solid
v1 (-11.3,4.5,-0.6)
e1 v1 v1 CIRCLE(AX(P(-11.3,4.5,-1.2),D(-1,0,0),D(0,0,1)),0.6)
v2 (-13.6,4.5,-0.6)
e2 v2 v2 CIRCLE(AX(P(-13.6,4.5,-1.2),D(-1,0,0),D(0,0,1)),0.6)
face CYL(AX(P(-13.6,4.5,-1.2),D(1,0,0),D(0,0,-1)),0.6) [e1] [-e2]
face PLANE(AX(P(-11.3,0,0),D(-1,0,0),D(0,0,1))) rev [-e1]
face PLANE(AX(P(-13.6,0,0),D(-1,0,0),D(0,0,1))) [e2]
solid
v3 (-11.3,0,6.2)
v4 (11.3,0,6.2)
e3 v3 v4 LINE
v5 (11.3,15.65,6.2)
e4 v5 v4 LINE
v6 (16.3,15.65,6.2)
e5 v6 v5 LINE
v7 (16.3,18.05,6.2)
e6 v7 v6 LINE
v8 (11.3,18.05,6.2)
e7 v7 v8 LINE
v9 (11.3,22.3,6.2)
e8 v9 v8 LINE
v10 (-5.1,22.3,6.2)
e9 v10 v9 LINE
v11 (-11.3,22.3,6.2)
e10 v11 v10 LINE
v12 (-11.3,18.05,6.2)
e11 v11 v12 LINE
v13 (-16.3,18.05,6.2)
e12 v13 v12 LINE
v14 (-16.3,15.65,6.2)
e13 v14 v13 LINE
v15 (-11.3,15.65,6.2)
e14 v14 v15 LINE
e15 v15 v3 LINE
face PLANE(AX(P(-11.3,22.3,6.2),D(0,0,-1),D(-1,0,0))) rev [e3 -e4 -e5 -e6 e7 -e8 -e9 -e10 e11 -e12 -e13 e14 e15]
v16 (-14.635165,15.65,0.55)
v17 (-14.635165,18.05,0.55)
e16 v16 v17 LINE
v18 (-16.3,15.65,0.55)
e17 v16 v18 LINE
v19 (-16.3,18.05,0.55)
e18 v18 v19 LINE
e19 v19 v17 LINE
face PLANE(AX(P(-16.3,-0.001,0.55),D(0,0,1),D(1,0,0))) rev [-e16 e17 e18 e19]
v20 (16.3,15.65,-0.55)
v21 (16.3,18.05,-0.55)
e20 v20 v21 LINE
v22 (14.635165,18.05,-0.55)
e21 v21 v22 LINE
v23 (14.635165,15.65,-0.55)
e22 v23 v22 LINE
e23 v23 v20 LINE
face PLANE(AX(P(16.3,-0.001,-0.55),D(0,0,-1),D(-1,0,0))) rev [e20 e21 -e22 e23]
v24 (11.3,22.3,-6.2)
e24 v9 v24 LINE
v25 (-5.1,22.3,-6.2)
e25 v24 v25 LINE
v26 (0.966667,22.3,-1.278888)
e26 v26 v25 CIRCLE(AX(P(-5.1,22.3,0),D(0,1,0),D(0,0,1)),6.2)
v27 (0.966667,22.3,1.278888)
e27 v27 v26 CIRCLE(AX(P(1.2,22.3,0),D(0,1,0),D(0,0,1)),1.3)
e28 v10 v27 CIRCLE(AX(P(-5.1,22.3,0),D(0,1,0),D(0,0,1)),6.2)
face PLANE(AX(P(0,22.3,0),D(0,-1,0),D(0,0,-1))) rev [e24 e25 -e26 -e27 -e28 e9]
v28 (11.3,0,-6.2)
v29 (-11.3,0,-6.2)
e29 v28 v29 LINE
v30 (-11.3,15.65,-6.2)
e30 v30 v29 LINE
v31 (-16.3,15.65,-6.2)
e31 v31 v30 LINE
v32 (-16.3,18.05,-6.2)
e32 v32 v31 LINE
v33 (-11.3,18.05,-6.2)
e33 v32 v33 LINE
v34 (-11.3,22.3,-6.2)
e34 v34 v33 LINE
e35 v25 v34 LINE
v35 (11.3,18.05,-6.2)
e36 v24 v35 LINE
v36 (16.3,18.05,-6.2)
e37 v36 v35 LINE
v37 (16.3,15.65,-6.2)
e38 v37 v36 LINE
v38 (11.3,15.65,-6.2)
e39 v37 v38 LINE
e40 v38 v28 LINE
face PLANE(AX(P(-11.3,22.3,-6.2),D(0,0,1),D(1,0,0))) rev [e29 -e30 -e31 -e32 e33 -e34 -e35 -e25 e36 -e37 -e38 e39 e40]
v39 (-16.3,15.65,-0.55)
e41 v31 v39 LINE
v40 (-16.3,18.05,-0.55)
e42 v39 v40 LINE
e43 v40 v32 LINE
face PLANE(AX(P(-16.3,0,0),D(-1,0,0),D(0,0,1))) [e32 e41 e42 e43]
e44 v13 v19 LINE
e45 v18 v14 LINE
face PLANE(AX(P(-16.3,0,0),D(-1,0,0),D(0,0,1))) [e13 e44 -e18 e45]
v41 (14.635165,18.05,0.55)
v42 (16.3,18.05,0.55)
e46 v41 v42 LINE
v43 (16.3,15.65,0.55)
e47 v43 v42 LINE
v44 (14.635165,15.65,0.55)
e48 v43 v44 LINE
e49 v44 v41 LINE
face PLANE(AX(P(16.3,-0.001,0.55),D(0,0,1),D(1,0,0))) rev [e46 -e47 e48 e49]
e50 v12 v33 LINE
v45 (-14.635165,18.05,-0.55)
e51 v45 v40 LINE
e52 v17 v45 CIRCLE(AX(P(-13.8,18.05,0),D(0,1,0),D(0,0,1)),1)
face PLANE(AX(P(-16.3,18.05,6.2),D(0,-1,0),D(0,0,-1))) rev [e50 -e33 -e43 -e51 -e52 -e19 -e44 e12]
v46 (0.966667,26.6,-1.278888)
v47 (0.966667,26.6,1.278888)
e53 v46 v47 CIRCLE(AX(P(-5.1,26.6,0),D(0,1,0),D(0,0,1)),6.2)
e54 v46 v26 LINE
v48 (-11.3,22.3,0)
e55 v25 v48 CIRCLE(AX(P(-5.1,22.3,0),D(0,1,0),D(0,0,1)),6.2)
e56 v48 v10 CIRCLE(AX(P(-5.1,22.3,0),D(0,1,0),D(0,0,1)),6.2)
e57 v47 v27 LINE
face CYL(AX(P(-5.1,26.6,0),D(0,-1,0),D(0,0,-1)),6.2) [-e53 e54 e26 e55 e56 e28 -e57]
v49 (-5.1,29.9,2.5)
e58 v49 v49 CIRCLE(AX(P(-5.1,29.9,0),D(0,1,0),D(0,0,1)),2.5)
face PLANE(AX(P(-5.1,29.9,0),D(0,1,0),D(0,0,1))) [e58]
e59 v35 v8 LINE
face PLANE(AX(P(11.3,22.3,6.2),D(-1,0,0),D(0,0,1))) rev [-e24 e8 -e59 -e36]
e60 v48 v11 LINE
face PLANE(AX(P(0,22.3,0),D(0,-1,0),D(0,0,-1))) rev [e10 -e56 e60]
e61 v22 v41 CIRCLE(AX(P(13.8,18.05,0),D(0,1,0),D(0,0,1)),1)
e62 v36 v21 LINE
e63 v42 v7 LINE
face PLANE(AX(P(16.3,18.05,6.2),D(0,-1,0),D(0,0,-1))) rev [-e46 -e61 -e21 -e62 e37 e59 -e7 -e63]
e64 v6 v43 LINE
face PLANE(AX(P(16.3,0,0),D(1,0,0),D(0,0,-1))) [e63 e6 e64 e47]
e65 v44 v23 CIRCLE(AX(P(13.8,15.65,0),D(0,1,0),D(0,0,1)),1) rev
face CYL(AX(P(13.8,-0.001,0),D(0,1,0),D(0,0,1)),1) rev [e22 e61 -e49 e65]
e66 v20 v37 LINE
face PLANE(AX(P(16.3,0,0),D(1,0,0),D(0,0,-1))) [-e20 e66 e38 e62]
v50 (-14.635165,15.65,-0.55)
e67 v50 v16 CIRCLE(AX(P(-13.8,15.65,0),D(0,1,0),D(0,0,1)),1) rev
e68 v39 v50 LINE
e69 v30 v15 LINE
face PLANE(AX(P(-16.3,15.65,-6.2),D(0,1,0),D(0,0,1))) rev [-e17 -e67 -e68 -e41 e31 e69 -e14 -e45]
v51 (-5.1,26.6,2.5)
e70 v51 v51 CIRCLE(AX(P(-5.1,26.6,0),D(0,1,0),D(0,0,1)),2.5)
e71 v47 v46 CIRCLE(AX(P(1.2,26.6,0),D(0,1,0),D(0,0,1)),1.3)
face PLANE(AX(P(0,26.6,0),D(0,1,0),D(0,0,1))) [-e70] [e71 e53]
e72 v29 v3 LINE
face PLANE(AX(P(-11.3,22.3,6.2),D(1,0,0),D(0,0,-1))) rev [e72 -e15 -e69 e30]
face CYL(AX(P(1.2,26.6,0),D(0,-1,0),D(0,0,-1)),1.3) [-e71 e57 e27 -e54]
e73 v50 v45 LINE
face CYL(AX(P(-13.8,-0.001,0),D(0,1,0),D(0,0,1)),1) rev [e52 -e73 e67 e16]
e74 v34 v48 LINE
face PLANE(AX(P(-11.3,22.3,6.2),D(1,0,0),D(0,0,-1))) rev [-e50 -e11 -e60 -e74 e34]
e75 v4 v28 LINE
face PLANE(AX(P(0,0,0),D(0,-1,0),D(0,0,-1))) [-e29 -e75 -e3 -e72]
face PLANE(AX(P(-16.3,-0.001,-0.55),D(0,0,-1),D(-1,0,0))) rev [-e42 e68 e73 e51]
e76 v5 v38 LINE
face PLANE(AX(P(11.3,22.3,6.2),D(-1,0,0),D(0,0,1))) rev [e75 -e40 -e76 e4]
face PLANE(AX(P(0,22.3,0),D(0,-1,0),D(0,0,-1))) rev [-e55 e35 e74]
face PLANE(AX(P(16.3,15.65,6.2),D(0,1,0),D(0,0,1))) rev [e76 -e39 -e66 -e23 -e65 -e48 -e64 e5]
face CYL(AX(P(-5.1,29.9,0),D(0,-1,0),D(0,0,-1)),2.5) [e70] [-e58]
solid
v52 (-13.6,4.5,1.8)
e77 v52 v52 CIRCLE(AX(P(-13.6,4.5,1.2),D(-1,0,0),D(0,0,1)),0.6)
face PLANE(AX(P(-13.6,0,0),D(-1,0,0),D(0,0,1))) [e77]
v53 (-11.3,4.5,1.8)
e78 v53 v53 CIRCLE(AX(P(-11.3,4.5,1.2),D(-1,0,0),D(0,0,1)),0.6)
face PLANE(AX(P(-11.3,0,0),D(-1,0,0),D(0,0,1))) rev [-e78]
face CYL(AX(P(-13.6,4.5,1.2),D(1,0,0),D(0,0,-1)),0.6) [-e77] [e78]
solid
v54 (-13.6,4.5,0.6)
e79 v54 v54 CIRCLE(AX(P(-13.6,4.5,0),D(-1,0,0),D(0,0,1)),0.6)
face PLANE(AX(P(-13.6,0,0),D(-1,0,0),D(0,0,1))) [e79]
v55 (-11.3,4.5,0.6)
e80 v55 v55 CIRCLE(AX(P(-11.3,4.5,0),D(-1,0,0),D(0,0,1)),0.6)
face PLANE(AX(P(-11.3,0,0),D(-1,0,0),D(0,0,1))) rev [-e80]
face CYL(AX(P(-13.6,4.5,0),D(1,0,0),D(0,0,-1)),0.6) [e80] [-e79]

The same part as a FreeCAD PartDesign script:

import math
import FreeCAD as App
import Part
import Sketcher
Q = App.Units.Quantity


def add_polygon(sketch, points):
    """Adds a closed chain of lines whose ends are joined by coincident constraints."""
    first, n = sketch.GeometryCount, len(points)
    for a, b in zip(points, points[1:] + points[:1]):
        sketch.addGeometry(Part.LineSegment(App.Vector(*a, 0), App.Vector(*b, 0)), False)
    for i in range(n):
        sketch.addConstraint(Sketcher.Constraint("Coincident", first + i, 2, first + (i + 1) % n, 1))

doc = App.newDocument("Part")
body = doc.addObject("PartDesign::Body", "Body")

# Sketch on XZ plane
sketch1 = body.newObject("Sketcher::SketchObject", "Sketch")
sketch1.AttachmentSupport = (doc.getObject("XZ_Plane"), [""])
sketch1.MapMode = "FlatFace"
add_polygon(sketch1, [(-11, -6), (-11, 6), (11, 6), (11, -6)])  # lines 0-3
sketch1.addConstraint([
    Sketcher.Constraint("Vertical", 0),
    Sketcher.Constraint("Horizontal", 1),
    Sketcher.Constraint("Vertical", 2),
    Sketcher.Constraint("Horizontal", 3),
    Sketcher.Constraint("Symmetric", 0, 2, 2, 2, -1, 1),
    Sketcher.Constraint("DistanceX", 1, 1, 1, 2, Q("22.6 mm")),
    Sketcher.Constraint("DistanceY", 0, 1, 0, 2, Q("12.4 mm")),
])
pad1 = body.newObject("PartDesign::Pad", "Pad")
pad1.Profile = sketch1
pad1.Length = 22.3
pad1.Reversed = True

# Sketch on YZ plane
sketch2 = body.newObject("Sketcher::SketchObject", "Sketch001")
sketch2.AttachmentSupport = (doc.getObject("YZ_Plane"), [""])
sketch2.MapMode = "FlatFace"
sketch2.AttachmentOffset = App.Placement(App.Vector(0, 0, 11.3), App.Rotation())
add_polygon(sketch2, [(18.1, 6.2), (15.7, 6.2), (15.7, -6.2), (18.1, -6.2)])  # lines 0-3
sketch2.addConstraint([
    Sketcher.Constraint("Horizontal", 0),
    Sketcher.Constraint("Vertical", 1),
    Sketcher.Constraint("Horizontal", 2),
    Sketcher.Constraint("Vertical", 3),
    Sketcher.Constraint("DistanceX", 0, 2, 0, 1, Q("2.4 mm")),
    Sketcher.Constraint("DistanceY", 1, 2, 1, 1, Q("12.4 mm")),
    Sketcher.Constraint("DistanceY", -1, 1, 0, 2, Q("6.2 mm")),
    Sketcher.Constraint("DistanceX", -1, 1, 0, 2, Q("15.65 mm")),
])
pad2 = body.newObject("PartDesign::Pad", "Pad001")
pad2.Profile = sketch2
pad2.Length = 5

# Sketch on YZ plane
sketch3 = body.newObject("Sketcher::SketchObject", "Sketch002")
sketch3.AttachmentSupport = (doc.getObject("YZ_Plane"), [""])
sketch3.MapMode = "FlatFace"
sketch3.AttachmentOffset = App.Placement(App.Vector(0, 0, -11.3), App.Rotation())
add_polygon(sketch3, [(18.1, -6.2), (15.7, -6.2), (15.7, 6.2), (18.1, 6.2)])  # lines 0-3
sketch3.addConstraint([
    Sketcher.Constraint("Horizontal", 0),
    Sketcher.Constraint("Vertical", 1),
    Sketcher.Constraint("Horizontal", 2),
    Sketcher.Constraint("Vertical", 3),
    Sketcher.Constraint("DistanceX", 0, 2, 0, 1, Q("2.4 mm")),
    Sketcher.Constraint("DistanceY", 1, 1, 1, 2, Q("12.4 mm")),
    Sketcher.Constraint("DistanceY", 0, 2, -1, 1, Q("6.2 mm")),
    Sketcher.Constraint("DistanceX", -1, 1, 0, 2, Q("15.65 mm")),
])
pad3 = body.newObject("PartDesign::Pad", "Pad002")
pad3.Profile = sketch3
pad3.Length = 5
pad3.Reversed = True

# Sketch on XZ plane
sketch4 = body.newObject("Sketcher::SketchObject", "Sketch003")
sketch4.AttachmentSupport = (doc.getObject("XZ_Plane"), [""])
sketch4.MapMode = "FlatFace"
sketch4.AttachmentOffset = App.Placement(App.Vector(0, 0, -18.05), App.Rotation())
sketch4.addGeometry([
    Part.LineSegment(App.Vector(-14.6, -0.6, 0), App.Vector(-16.3, -0.6, 0)),
    Part.LineSegment(App.Vector(-16.3, -0.6, 0), App.Vector(-16.3, 0.6, 0)),
    Part.LineSegment(App.Vector(-16.3, 0.6, 0), App.Vector(-14.6, 0.6, 0)),
    Part.ArcOfCircle(Part.Circle(App.Vector(-13.8, 0, 0), App.Vector(0, 0, 1), 1), math.radians(-147), math.radians(147)),
], False)
sketch4.addConstraint([
    Sketcher.Constraint("Coincident", 0, 2, 1, 1),
    Sketcher.Constraint("Coincident", 1, 2, 2, 1),
    Sketcher.Constraint("Coincident", 2, 2, 3, 2),
    Sketcher.Constraint("Coincident", 3, 1, 0, 1),
    Sketcher.Constraint("Horizontal", 0),
    Sketcher.Constraint("Vertical", 1),
    Sketcher.Constraint("Horizontal", 2),
    Sketcher.Constraint("Symmetric", 2, 2, 3, 1, -1),
    Sketcher.Constraint("Radius", 3, Q("1 mm")),
    Sketcher.Constraint("DistanceY", 1, 1, 1, 2, Q("1.1 mm")),
    Sketcher.Constraint("DistanceX", 3, 3, -1, 1, Q("13.8 mm")),
    Sketcher.Constraint("DistanceX", 0, 2, -1, 1, Q("16.3 mm")),
])
pocket1 = body.newObject("PartDesign::Pocket", "Pocket")
pocket1.Profile = sketch4
pocket1.Type = "UpToFirst"
pocket1.Reversed = True

# Sketch on XZ plane
sketch5 = body.newObject("Sketcher::SketchObject", "Sketch004")
sketch5.AttachmentSupport = (doc.getObject("XZ_Plane"), [""])
sketch5.MapMode = "FlatFace"
sketch5.AttachmentOffset = App.Placement(App.Vector(0, 0, -18.05), App.Rotation())
sketch5.addGeometry([
    Part.LineSegment(App.Vector(14.6, 0.6, 0), App.Vector(16.3, 0.6, 0)),
    Part.LineSegment(App.Vector(16.3, 0.6, 0), App.Vector(16.3, -0.6, 0)),
    Part.LineSegment(App.Vector(16.3, -0.6, 0), App.Vector(14.6, -0.6, 0)),
    Part.ArcOfCircle(Part.Circle(App.Vector(13.8, 0, 0), App.Vector(0, 0, 1), 1), math.radians(33), math.radians(327)),
], False)
sketch5.addConstraint([
    Sketcher.Constraint("Coincident", 0, 2, 1, 1),
    Sketcher.Constraint("Coincident", 1, 2, 2, 1),
    Sketcher.Constraint("Coincident", 2, 2, 3, 2),
    Sketcher.Constraint("Coincident", 3, 1, 0, 1),
    Sketcher.Constraint("Horizontal", 0),
    Sketcher.Constraint("Vertical", 1),
    Sketcher.Constraint("Horizontal", 2),
    Sketcher.Constraint("Symmetric", 2, 2, 3, 1, -1),
    Sketcher.Constraint("Radius", 3, Q("1 mm")),
    Sketcher.Constraint("DistanceY", 1, 2, 1, 1, Q("1.1 mm")),
    Sketcher.Constraint("DistanceX", -1, 1, 3, 3, Q("13.8 mm")),
    Sketcher.Constraint("DistanceX", -1, 1, 0, 2, Q("16.3 mm")),
])
pocket2 = body.newObject("PartDesign::Pocket", "Pocket001")
pocket2.Profile = sketch5
pocket2.Type = "UpToFirst"
pocket2.Reversed = True

# Sketch on XZ plane
sketch6 = body.newObject("Sketcher::SketchObject", "Sketch005")
sketch6.AttachmentSupport = (doc.getObject("XZ_Plane"), [""])
sketch6.MapMode = "FlatFace"
sketch6.AttachmentOffset = App.Placement(App.Vector(0, 0, -22.3), App.Rotation())
sketch6.addGeometry([
    Part.ArcOfCircle(Part.Circle(App.Vector(1.2, 0, 0), App.Vector(0, 0, 1), 1.3), math.radians(-100), math.radians(100)),
    Part.ArcOfCircle(Part.Circle(App.Vector(-5.1, 0, 0), App.Vector(0, 0, 1), 6.2), math.radians(12), math.radians(348)),
], False)
sketch6.addConstraint([
    Sketcher.Constraint("Coincident", 0, 1, 1, 2),
    Sketcher.Constraint("Coincident", 1, 1, 0, 2),
    Sketcher.Constraint("Symmetric", 0, 1, 1, 1, -1),
    Sketcher.Constraint("Radius", 0, Q("1.3 mm")),
    Sketcher.Constraint("Radius", 1, Q("6.2 mm")),
    Sketcher.Constraint("DistanceX", -1, 1, 0, 3, Q("1.2 mm")),
    Sketcher.Constraint("DistanceX", 1, 3, -1, 1, Q("5.1 mm")),
])
pad4 = body.newObject("PartDesign::Pad", "Pad003")
pad4.Profile = sketch6
pad4.Length = 4.3
pad4.Reversed = True

# Sketch on XZ plane
sketch7 = body.newObject("Sketcher::SketchObject", "Sketch006")
sketch7.AttachmentSupport = (doc.getObject("XZ_Plane"), [""])
sketch7.MapMode = "FlatFace"
sketch7.AttachmentOffset = App.Placement(App.Vector(0, 0, -26.6), App.Rotation())
sketch7.addGeometry(Part.Circle(App.Vector(-5.1, 0, 0), App.Vector(0, 0, 1), 2.5), False)
sketch7.addConstraint([
    Sketcher.Constraint("PointOnObject", 0, 3, -1),
    Sketcher.Constraint("Diameter", 0, Q("5 mm")),
    Sketcher.Constraint("DistanceX", 0, 3, -1, 1, Q("5.1 mm")),
])
pad5 = body.newObject("PartDesign::Pad", "Pad004")
pad5.Profile = sketch7
pad5.Length = 3.3
pad5.Reversed = True
body2 = doc.addObject("PartDesign::Body", "Body001")

# Sketch on YZ plane
sketch8 = body2.newObject("Sketcher::SketchObject", "Sketch007")
sketch8.AttachmentSupport = (doc.getObject("YZ_Plane001"), [""])
sketch8.MapMode = "FlatFace"
sketch8.AttachmentOffset = App.Placement(App.Vector(0, 0, -11.3), App.Rotation())
sketch8.addGeometry(Part.Circle(App.Vector(4.5, 0, 0), App.Vector(0, 0, 1), 0.6), False)
sketch8.addConstraint([
    Sketcher.Constraint("PointOnObject", 0, 3, -1),
    Sketcher.Constraint("Diameter", 0, Q("1.2 mm")),
    Sketcher.Constraint("DistanceX", -1, 1, 0, 3, Q("4.5 mm")),
])
pad6 = body2.newObject("PartDesign::Pad", "Pad005")
pad6.Profile = sketch8
pad6.Length = 2.3
pad6.Reversed = True
body3 = doc.addObject("PartDesign::Body", "Body002")

# Sketch on YZ plane
sketch9 = body3.newObject("Sketcher::SketchObject", "Sketch008")
sketch9.AttachmentSupport = (doc.getObject("YZ_Plane002"), [""])
sketch9.MapMode = "FlatFace"
sketch9.AttachmentOffset = App.Placement(App.Vector(0, 0, -11.3), App.Rotation())
sketch9.addGeometry(Part.Circle(App.Vector(4.5, -1.2, 0), App.Vector(0, 0, 1), 0.6), False)
sketch9.addConstraint([
    Sketcher.Constraint("Diameter", 0, Q("1.2 mm")),
    Sketcher.Constraint("DistanceX", -1, 1, 0, 3, Q("4.5 mm")),
    Sketcher.Constraint("DistanceY", 0, 3, -1, 1, Q("1.2 mm")),
])
pad7 = body3.newObject("PartDesign::Pad", "Pad006")
pad7.Profile = sketch9
pad7.Length = 2.3
pad7.Reversed = True
body4 = doc.addObject("PartDesign::Body", "Body003")

# Sketch on YZ plane
sketch10 = body4.newObject("Sketcher::SketchObject", "Sketch009")
sketch10.AttachmentSupport = (doc.getObject("YZ_Plane003"), [""])
sketch10.MapMode = "FlatFace"
sketch10.AttachmentOffset = App.Placement(App.Vector(0, 0, -11.3), App.Rotation())
sketch10.addGeometry(Part.Circle(App.Vector(4.5, 1.2, 0), App.Vector(0, 0, 1), 0.6), False)
sketch10.addConstraint([
    Sketcher.Constraint("Diameter", 0, Q("1.2 mm")),
    Sketcher.Constraint("DistanceX", -1, 1, 0, 3, Q("4.5 mm")),
    Sketcher.Constraint("DistanceY", -1, 1, 0, 3, Q("1.2 mm")),
])
pad8 = body4.newObject("PartDesign::Pad", "Pad007")
pad8.Profile = sketch10
pad8.Length = 2.3
pad8.Reversed = True

doc.recompute()
